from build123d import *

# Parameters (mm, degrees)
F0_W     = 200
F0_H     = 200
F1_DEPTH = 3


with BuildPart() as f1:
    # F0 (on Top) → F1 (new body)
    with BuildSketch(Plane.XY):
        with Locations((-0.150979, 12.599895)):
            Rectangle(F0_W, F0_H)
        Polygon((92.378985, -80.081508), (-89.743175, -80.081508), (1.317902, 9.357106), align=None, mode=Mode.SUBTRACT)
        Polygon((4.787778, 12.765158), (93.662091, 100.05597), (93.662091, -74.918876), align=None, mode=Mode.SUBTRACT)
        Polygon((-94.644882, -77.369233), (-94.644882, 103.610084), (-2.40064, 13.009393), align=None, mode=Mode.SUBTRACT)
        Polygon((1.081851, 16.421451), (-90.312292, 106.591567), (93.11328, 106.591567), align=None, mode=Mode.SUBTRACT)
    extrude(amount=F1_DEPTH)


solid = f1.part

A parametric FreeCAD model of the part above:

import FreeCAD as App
import Part
import Sketcher

doc = App.newDocument("Part")
params = doc.addObject("Spreadsheet::Sheet", "Params")
for row, (alias, value) in enumerate([
    ("sketch1_width", "200 mm"),
    ("pad1_length", "3 mm"),
], start=1):
    params.set(f"A{row}", alias)
    params.set(f"B{row}", "=" + value)
    params.setAlias(f"B{row}", alias)

body = doc.addObject("PartDesign::Body", "Body")

# Sketch on XY plane
sketch1 = body.newObject("Sketcher::SketchObject", "Sketch")
sketch1.AttachmentSupport = (doc.getObject("XY_Plane"), [""])
sketch1.MapMode = "FlatFace"
sketch1.addGeometry([
    Part.LineSegment(App.Vector(-100, 113, 0), App.Vector(-100, -87, 0)),  # 0
    Part.LineSegment(App.Vector(-100, -87, 0), App.Vector(100, -87, 0)),  # 1
    Part.LineSegment(App.Vector(100, -87, 0), App.Vector(100, 113, 0)),  # 2
    Part.LineSegment(App.Vector(100, 113, 0), App.Vector(-100, 113, 0)),  # 3
    Part.LineSegment(App.Vector(-2, 13, 0), App.Vector(-95, -77, 0)),  # 4
    Part.LineSegment(App.Vector(-95, -77, 0), App.Vector(-95, 104, 0)),  # 5
    Part.LineSegment(App.Vector(-95, 104, 0), App.Vector(-2, 13, 0)),  # 6
    Part.LineSegment(App.Vector(1, 9, 0), App.Vector(92, -80, 0)),  # 7
    Part.LineSegment(App.Vector(92, -80, 0), App.Vector(-90, -80, 0)),  # 8
    Part.LineSegment(App.Vector(-90, -80, 0), App.Vector(1, 9, 0)),  # 9
    Part.LineSegment(App.Vector(94, -75, 0), App.Vector(5, 13, 0)),  # 10
    Part.LineSegment(App.Vector(5, 13, 0), App.Vector(94, 100, 0)),  # 11
    Part.LineSegment(App.Vector(94, 100, 0), App.Vector(94, -75, 0)),  # 12
    Part.LineSegment(App.Vector(93, 107, 0), App.Vector(1, 16, 0)),  # 13
    Part.LineSegment(App.Vector(1, 16, 0), App.Vector(-90, 107, 0)),  # 14
    Part.LineSegment(App.Vector(-90, 107, 0), App.Vector(93, 107, 0)),  # 15
], False)
sketch1.addConstraint([
    Sketcher.Constraint("Coincident", 0, 2, 1, 1),
    Sketcher.Constraint("Coincident", 1, 2, 2, 1),
    Sketcher.Constraint("Coincident", 2, 2, 3, 1),
    Sketcher.Constraint("Coincident", 3, 2, 0, 1),
    Sketcher.Constraint("Coincident", 4, 2, 5, 1),
    Sketcher.Constraint("Coincident", 5, 2, 6, 1),
    Sketcher.Constraint("Coincident", 6, 2, 4, 1),
    Sketcher.Constraint("Coincident", 7, 2, 8, 1),
    Sketcher.Constraint("Coincident", 8, 2, 9, 1),
    Sketcher.Constraint("Coincident", 9, 2, 7, 1),
    Sketcher.Constraint("Coincident", 10, 2, 11, 1),
    Sketcher.Constraint("Coincident", 11, 2, 12, 1),
    Sketcher.Constraint("Coincident", 12, 2, 10, 1),
    Sketcher.Constraint("Coincident", 13, 2, 14, 1),
    Sketcher.Constraint("Coincident", 14, 2, 15, 1),
    Sketcher.Constraint("Coincident", 15, 2, 13, 1),
    Sketcher.Constraint("Vertical", 0),
    Sketcher.Constraint("Horizontal", 1),
    Sketcher.Constraint("Vertical", 2),
    Sketcher.Constraint("Horizontal", 3),
    Sketcher.Constraint("Vertical", 5),
    Sketcher.Constraint("Horizontal", 8),
    Sketcher.Constraint("Vertical", 12),
    Sketcher.Constraint("Horizontal", 15),
    Sketcher.Constraint("Parallel", 6, 7),
    Sketcher.Constraint("Parallel", 9, 11),
    Sketcher.Constraint("Parallel", 4, 13),
    Sketcher.Constraint("Parallel", 10, 14),
    Sketcher.Constraint("Equal", 3, 0),
    Sketcher.Constraint("DistanceX", 1, 1, 1, 2, 200.0),
    Sketcher.Constraint("DistanceX", 8, 2, 8, 1, 182.12216),
    Sketcher.Constraint("DistanceX", 15, 1, 15, 2, 183.425572),
    Sketcher.Constraint("DistanceX", -1, 1, 9, 2, 1.317902),
    Sketcher.Constraint("DistanceY", 6, 2, 3, 2, 99.590502),
    Sketcher.Constraint("DistanceY", 7, 2, 6, 2, 93.090901),
    Sketcher.Constraint("DistanceX", 10, 2, 15, 2, 88.325502),
    Sketcher.Constraint("Distance", 9, 127.637712),
    Sketcher.Constraint("Distance", 10, 124.848441),
    Sketcher.Constraint("Distance", 13, 128.842671),
    Sketcher.Constraint("DistanceY", 5, 1, 5, 2, 180.979317),
    Sketcher.Constraint("DistanceY", 12, 2, 12, 1, 174.974846),
    Sketcher.Constraint("DistanceX", 0, 2, -1, 1, 100.150979),
    Sketcher.Constraint("DistanceX", 4, 2, -1, 1, 94.644882),
    Sketcher.Constraint("DistanceX", 6, 2, -1, 1, 2.40064),
    Sketcher.Constraint("DistanceY", 7, 2, -1, 1, 80.081508),
    Sketcher.Constraint("DistanceX", -1, 1, 10, 2, 4.787778),
    Sketcher.Constraint("DistanceY", -1, 1, 11, 2, 100.05597),
    Sketcher.Constraint("DistanceY", -1, 1, 13, 2, 16.421451),
])
sketch1.setExpression("Constraints[29]", "Params.sketch1_width")
pad1 = body.newObject("PartDesign::Pad", "Pad")
pad1.Profile = sketch1
pad1.setExpression("Length", "Params.pad1_length")

doc.recompute()
